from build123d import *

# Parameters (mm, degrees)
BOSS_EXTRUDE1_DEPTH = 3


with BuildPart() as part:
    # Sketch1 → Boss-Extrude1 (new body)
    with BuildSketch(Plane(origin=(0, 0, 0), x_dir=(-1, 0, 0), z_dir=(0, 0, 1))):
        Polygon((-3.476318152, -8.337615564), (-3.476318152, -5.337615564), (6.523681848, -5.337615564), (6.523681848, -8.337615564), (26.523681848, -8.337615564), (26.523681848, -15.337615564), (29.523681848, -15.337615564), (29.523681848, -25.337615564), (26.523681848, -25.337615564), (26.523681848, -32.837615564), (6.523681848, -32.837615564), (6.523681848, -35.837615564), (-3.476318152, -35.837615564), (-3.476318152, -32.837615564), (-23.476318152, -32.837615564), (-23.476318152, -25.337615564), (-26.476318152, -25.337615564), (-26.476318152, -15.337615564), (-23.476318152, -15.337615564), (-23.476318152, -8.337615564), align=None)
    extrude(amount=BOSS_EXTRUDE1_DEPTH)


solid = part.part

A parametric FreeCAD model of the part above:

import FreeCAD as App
import Part
import Sketcher
Q = App.Units.Quantity

doc = App.newDocument("Part")
params = doc.addObject("Spreadsheet::Sheet", "Params")
for row, (alias, value) in enumerate([
    ("sketch1_width", "20 mm"),
    ("sketch1_width2", "3 mm"),
    ("sketch1_width3", "10 mm"),
    ("sketch1_height", "7 mm"),
    ("sketch1_height2", "7.5 mm"),
    ("pad1_length", "3 mm"),
], start=1):
    params.set(f"A{row}", alias)
    params.set(f"B{row}", "=" + value)
    params.setAlias(f"B{row}", alias)

body = doc.addObject("PartDesign::Body", "Body")

sketch1 = body.newObject("Sketcher::SketchObject", "Sketch")
sketch1.AttachmentSupport = (doc.getObject("XY_Plane"), [""])
sketch1.MapMode = "FlatFace"
sketch1.addGeometry([
    Part.LineSegment(App.Vector(3.476318, 5.337616, 0), App.Vector(3.476318, 8.337616, 0)),
    Part.LineSegment(App.Vector(3.476318, 8.337616, 0), App.Vector(23.476318, 8.337616, 0)),
    Part.LineSegment(App.Vector(23.476318, 8.337616, 0), App.Vector(23.476318, 15.337616, 0)),
    Part.LineSegment(App.Vector(23.476318, 15.337616, 0), App.Vector(26.476318, 15.337616, 0)),
    Part.LineSegment(App.Vector(26.476318, 15.337616, 0), App.Vector(26.476318, 25.337616, 0)),
    Part.LineSegment(App.Vector(26.476318, 25.337616, 0), App.Vector(23.476318, 25.337616, 0)),
    Part.LineSegment(App.Vector(23.476318, 25.337616, 0), App.Vector(23.476318, 32.837616, 0)),
    Part.LineSegment(App.Vector(23.476318, 32.837616, 0), App.Vector(3.476318, 32.837616, 0)),
    Part.LineSegment(App.Vector(3.476318, 32.837616, 0), App.Vector(3.476318, 35.837616, 0)),
    Part.LineSegment(App.Vector(3.476318, 35.837616, 0), App.Vector(-6.523682, 35.837616, 0)),
    Part.LineSegment(App.Vector(-6.523682, 35.837616, 0), App.Vector(-6.523682, 32.837616, 0)),
    Part.LineSegment(App.Vector(-6.523682, 32.837616, 0), App.Vector(-26.523682, 32.837616, 0)),
    Part.LineSegment(App.Vector(-26.523682, 32.837616, 0), App.Vector(-26.523682, 25.337616, 0)),
    Part.LineSegment(App.Vector(-26.523682, 25.337616, 0), App.Vector(-29.523682, 25.337616, 0)),
    Part.LineSegment(App.Vector(-29.523682, 25.337616, 0), App.Vector(-29.523682, 15.337616, 0)),
    Part.LineSegment(App.Vector(-29.523682, 15.337616, 0), App.Vector(-26.523682, 15.337616, 0)),
    Part.LineSegment(App.Vector(-26.523682, 15.337616, 0), App.Vector(-26.523682, 8.337616, 0)),
    Part.LineSegment(App.Vector(-26.523682, 8.337616, 0), App.Vector(-6.523682, 8.337616, 0)),
    Part.LineSegment(App.Vector(-6.523682, 8.337616, 0), App.Vector(-6.523682, 5.337616, 0)),
    Part.LineSegment(App.Vector(-6.523682, 5.337616, 0), App.Vector(3.476318, 5.337616, 0)),
], False)
sketch1.addConstraint([
    Sketcher.Constraint("Coincident", 0, 2, 1, 1),
    Sketcher.Constraint("Coincident", 1, 2, 2, 1),
    Sketcher.Constraint("Coincident", 2, 2, 3, 1),
    Sketcher.Constraint("Coincident", 3, 2, 4, 1),
    Sketcher.Constraint("Coincident", 4, 2, 5, 1),
    Sketcher.Constraint("Coincident", 5, 2, 6, 1),
    Sketcher.Constraint("Coincident", 6, 2, 7, 1),
    Sketcher.Constraint("Coincident", 7, 2, 8, 1),
    Sketcher.Constraint("Coincident", 8, 2, 9, 1),
    Sketcher.Constraint("Coincident", 9, 2, 10, 1),
    Sketcher.Constraint("Coincident", 10, 2, 11, 1),
    Sketcher.Constraint("Coincident", 11, 2, 12, 1),
    Sketcher.Constraint("Coincident", 12, 2, 13, 1),
    Sketcher.Constraint("Coincident", 13, 2, 14, 1),
    Sketcher.Constraint("Coincident", 14, 2, 15, 1),
    Sketcher.Constraint("Coincident", 15, 2, 16, 1),
    Sketcher.Constraint("Coincident", 16, 2, 17, 1),
    Sketcher.Constraint("Coincident", 17, 2, 18, 1),
    Sketcher.Constraint("Coincident", 18, 2, 19, 1),
    Sketcher.Constraint("Coincident", 19, 2, 0, 1),
    Sketcher.Constraint("Vertical", 0),
    Sketcher.Constraint("Horizontal", 1),
    Sketcher.Constraint("Vertical", 2),
    Sketcher.Constraint("Horizontal", 3),
    Sketcher.Constraint("Vertical", 4),
    Sketcher.Constraint("Horizontal", 5),
    Sketcher.Constraint("Vertical", 6),
    Sketcher.Constraint("Horizontal", 7),
    Sketcher.Constraint("Vertical", 8),
    Sketcher.Constraint("Horizontal", 9),
    Sketcher.Constraint("Vertical", 10),
    Sketcher.Constraint("Horizontal", 11),
    Sketcher.Constraint("Vertical", 12),
    Sketcher.Constraint("Horizontal", 13),
    Sketcher.Constraint("Vertical", 14),
    Sketcher.Constraint("Horizontal", 15),
    Sketcher.Constraint("Vertical", 16),
    Sketcher.Constraint("Horizontal", 17),
    Sketcher.Constraint("Vertical", 18),
    Sketcher.Constraint("Horizontal", 19),
    Sketcher.Constraint("Horizontal", 7, 2, 10, 2),
    Sketcher.Constraint("Horizontal", 5, 2, 12, 2),
    Sketcher.Constraint("Horizontal", 3, 2, 14, 2),
    Sketcher.Constraint("Horizontal", 1, 2, 16, 2),
    Sketcher.Constraint("Vertical", 2, 2, 5, 2),
    Sketcher.Constraint("Vertical", 0, 2, 7, 2),
    Sketcher.Constraint("Vertical", 12, 2, 15, 2),
    Sketcher.Constraint("Vertical", 10, 2, 17, 2),
    Sketcher.Constraint("Equal", 7, 11),
    Sketcher.Constraint("Equal", 5, 13),
    Sketcher.Constraint("Equal", 15, 0),
    Sketcher.Constraint("Equal", 19, 4),
    Sketcher.Constraint("Equal", 0, 8),
    Sketcher.Constraint("DistanceX", 1, 1, 1, 2, Q("20 mm")),
    Sketcher.Constraint("DistanceX", 3, 1, 3, 2, Q("3 mm")),
    Sketcher.Constraint("DistanceX", 9, 2, 9, 1, Q("10 mm")),
    Sketcher.Constraint("DistanceY", 2, 1, 2, 2, Q("7 mm")),
    Sketcher.Constraint("DistanceY", 6, 1, 6, 2, Q("7.5 mm")),
    Sketcher.Constraint("DistanceX", -1, 1, 0, 2, Q("3.476318 mm")),
    Sketcher.Constraint("DistanceY", -1, 1, 0, 2, Q("8.337616 mm")),
])
sketch1.setExpression("Constraints[53]", "Params.sketch1_width")
sketch1.setExpression("Constraints[54]", "Params.sketch1_width2")
sketch1.setExpression("Constraints[55]", "Params.sketch1_width3")
sketch1.setExpression("Constraints[56]", "Params.sketch1_height")
sketch1.setExpression("Constraints[57]", "Params.sketch1_height2")
pad1 = body.newObject("PartDesign::Pad", "Pad")
pad1.Profile = sketch1
pad1.setExpression("Length", "Params.pad1_length")

doc.recompute()
